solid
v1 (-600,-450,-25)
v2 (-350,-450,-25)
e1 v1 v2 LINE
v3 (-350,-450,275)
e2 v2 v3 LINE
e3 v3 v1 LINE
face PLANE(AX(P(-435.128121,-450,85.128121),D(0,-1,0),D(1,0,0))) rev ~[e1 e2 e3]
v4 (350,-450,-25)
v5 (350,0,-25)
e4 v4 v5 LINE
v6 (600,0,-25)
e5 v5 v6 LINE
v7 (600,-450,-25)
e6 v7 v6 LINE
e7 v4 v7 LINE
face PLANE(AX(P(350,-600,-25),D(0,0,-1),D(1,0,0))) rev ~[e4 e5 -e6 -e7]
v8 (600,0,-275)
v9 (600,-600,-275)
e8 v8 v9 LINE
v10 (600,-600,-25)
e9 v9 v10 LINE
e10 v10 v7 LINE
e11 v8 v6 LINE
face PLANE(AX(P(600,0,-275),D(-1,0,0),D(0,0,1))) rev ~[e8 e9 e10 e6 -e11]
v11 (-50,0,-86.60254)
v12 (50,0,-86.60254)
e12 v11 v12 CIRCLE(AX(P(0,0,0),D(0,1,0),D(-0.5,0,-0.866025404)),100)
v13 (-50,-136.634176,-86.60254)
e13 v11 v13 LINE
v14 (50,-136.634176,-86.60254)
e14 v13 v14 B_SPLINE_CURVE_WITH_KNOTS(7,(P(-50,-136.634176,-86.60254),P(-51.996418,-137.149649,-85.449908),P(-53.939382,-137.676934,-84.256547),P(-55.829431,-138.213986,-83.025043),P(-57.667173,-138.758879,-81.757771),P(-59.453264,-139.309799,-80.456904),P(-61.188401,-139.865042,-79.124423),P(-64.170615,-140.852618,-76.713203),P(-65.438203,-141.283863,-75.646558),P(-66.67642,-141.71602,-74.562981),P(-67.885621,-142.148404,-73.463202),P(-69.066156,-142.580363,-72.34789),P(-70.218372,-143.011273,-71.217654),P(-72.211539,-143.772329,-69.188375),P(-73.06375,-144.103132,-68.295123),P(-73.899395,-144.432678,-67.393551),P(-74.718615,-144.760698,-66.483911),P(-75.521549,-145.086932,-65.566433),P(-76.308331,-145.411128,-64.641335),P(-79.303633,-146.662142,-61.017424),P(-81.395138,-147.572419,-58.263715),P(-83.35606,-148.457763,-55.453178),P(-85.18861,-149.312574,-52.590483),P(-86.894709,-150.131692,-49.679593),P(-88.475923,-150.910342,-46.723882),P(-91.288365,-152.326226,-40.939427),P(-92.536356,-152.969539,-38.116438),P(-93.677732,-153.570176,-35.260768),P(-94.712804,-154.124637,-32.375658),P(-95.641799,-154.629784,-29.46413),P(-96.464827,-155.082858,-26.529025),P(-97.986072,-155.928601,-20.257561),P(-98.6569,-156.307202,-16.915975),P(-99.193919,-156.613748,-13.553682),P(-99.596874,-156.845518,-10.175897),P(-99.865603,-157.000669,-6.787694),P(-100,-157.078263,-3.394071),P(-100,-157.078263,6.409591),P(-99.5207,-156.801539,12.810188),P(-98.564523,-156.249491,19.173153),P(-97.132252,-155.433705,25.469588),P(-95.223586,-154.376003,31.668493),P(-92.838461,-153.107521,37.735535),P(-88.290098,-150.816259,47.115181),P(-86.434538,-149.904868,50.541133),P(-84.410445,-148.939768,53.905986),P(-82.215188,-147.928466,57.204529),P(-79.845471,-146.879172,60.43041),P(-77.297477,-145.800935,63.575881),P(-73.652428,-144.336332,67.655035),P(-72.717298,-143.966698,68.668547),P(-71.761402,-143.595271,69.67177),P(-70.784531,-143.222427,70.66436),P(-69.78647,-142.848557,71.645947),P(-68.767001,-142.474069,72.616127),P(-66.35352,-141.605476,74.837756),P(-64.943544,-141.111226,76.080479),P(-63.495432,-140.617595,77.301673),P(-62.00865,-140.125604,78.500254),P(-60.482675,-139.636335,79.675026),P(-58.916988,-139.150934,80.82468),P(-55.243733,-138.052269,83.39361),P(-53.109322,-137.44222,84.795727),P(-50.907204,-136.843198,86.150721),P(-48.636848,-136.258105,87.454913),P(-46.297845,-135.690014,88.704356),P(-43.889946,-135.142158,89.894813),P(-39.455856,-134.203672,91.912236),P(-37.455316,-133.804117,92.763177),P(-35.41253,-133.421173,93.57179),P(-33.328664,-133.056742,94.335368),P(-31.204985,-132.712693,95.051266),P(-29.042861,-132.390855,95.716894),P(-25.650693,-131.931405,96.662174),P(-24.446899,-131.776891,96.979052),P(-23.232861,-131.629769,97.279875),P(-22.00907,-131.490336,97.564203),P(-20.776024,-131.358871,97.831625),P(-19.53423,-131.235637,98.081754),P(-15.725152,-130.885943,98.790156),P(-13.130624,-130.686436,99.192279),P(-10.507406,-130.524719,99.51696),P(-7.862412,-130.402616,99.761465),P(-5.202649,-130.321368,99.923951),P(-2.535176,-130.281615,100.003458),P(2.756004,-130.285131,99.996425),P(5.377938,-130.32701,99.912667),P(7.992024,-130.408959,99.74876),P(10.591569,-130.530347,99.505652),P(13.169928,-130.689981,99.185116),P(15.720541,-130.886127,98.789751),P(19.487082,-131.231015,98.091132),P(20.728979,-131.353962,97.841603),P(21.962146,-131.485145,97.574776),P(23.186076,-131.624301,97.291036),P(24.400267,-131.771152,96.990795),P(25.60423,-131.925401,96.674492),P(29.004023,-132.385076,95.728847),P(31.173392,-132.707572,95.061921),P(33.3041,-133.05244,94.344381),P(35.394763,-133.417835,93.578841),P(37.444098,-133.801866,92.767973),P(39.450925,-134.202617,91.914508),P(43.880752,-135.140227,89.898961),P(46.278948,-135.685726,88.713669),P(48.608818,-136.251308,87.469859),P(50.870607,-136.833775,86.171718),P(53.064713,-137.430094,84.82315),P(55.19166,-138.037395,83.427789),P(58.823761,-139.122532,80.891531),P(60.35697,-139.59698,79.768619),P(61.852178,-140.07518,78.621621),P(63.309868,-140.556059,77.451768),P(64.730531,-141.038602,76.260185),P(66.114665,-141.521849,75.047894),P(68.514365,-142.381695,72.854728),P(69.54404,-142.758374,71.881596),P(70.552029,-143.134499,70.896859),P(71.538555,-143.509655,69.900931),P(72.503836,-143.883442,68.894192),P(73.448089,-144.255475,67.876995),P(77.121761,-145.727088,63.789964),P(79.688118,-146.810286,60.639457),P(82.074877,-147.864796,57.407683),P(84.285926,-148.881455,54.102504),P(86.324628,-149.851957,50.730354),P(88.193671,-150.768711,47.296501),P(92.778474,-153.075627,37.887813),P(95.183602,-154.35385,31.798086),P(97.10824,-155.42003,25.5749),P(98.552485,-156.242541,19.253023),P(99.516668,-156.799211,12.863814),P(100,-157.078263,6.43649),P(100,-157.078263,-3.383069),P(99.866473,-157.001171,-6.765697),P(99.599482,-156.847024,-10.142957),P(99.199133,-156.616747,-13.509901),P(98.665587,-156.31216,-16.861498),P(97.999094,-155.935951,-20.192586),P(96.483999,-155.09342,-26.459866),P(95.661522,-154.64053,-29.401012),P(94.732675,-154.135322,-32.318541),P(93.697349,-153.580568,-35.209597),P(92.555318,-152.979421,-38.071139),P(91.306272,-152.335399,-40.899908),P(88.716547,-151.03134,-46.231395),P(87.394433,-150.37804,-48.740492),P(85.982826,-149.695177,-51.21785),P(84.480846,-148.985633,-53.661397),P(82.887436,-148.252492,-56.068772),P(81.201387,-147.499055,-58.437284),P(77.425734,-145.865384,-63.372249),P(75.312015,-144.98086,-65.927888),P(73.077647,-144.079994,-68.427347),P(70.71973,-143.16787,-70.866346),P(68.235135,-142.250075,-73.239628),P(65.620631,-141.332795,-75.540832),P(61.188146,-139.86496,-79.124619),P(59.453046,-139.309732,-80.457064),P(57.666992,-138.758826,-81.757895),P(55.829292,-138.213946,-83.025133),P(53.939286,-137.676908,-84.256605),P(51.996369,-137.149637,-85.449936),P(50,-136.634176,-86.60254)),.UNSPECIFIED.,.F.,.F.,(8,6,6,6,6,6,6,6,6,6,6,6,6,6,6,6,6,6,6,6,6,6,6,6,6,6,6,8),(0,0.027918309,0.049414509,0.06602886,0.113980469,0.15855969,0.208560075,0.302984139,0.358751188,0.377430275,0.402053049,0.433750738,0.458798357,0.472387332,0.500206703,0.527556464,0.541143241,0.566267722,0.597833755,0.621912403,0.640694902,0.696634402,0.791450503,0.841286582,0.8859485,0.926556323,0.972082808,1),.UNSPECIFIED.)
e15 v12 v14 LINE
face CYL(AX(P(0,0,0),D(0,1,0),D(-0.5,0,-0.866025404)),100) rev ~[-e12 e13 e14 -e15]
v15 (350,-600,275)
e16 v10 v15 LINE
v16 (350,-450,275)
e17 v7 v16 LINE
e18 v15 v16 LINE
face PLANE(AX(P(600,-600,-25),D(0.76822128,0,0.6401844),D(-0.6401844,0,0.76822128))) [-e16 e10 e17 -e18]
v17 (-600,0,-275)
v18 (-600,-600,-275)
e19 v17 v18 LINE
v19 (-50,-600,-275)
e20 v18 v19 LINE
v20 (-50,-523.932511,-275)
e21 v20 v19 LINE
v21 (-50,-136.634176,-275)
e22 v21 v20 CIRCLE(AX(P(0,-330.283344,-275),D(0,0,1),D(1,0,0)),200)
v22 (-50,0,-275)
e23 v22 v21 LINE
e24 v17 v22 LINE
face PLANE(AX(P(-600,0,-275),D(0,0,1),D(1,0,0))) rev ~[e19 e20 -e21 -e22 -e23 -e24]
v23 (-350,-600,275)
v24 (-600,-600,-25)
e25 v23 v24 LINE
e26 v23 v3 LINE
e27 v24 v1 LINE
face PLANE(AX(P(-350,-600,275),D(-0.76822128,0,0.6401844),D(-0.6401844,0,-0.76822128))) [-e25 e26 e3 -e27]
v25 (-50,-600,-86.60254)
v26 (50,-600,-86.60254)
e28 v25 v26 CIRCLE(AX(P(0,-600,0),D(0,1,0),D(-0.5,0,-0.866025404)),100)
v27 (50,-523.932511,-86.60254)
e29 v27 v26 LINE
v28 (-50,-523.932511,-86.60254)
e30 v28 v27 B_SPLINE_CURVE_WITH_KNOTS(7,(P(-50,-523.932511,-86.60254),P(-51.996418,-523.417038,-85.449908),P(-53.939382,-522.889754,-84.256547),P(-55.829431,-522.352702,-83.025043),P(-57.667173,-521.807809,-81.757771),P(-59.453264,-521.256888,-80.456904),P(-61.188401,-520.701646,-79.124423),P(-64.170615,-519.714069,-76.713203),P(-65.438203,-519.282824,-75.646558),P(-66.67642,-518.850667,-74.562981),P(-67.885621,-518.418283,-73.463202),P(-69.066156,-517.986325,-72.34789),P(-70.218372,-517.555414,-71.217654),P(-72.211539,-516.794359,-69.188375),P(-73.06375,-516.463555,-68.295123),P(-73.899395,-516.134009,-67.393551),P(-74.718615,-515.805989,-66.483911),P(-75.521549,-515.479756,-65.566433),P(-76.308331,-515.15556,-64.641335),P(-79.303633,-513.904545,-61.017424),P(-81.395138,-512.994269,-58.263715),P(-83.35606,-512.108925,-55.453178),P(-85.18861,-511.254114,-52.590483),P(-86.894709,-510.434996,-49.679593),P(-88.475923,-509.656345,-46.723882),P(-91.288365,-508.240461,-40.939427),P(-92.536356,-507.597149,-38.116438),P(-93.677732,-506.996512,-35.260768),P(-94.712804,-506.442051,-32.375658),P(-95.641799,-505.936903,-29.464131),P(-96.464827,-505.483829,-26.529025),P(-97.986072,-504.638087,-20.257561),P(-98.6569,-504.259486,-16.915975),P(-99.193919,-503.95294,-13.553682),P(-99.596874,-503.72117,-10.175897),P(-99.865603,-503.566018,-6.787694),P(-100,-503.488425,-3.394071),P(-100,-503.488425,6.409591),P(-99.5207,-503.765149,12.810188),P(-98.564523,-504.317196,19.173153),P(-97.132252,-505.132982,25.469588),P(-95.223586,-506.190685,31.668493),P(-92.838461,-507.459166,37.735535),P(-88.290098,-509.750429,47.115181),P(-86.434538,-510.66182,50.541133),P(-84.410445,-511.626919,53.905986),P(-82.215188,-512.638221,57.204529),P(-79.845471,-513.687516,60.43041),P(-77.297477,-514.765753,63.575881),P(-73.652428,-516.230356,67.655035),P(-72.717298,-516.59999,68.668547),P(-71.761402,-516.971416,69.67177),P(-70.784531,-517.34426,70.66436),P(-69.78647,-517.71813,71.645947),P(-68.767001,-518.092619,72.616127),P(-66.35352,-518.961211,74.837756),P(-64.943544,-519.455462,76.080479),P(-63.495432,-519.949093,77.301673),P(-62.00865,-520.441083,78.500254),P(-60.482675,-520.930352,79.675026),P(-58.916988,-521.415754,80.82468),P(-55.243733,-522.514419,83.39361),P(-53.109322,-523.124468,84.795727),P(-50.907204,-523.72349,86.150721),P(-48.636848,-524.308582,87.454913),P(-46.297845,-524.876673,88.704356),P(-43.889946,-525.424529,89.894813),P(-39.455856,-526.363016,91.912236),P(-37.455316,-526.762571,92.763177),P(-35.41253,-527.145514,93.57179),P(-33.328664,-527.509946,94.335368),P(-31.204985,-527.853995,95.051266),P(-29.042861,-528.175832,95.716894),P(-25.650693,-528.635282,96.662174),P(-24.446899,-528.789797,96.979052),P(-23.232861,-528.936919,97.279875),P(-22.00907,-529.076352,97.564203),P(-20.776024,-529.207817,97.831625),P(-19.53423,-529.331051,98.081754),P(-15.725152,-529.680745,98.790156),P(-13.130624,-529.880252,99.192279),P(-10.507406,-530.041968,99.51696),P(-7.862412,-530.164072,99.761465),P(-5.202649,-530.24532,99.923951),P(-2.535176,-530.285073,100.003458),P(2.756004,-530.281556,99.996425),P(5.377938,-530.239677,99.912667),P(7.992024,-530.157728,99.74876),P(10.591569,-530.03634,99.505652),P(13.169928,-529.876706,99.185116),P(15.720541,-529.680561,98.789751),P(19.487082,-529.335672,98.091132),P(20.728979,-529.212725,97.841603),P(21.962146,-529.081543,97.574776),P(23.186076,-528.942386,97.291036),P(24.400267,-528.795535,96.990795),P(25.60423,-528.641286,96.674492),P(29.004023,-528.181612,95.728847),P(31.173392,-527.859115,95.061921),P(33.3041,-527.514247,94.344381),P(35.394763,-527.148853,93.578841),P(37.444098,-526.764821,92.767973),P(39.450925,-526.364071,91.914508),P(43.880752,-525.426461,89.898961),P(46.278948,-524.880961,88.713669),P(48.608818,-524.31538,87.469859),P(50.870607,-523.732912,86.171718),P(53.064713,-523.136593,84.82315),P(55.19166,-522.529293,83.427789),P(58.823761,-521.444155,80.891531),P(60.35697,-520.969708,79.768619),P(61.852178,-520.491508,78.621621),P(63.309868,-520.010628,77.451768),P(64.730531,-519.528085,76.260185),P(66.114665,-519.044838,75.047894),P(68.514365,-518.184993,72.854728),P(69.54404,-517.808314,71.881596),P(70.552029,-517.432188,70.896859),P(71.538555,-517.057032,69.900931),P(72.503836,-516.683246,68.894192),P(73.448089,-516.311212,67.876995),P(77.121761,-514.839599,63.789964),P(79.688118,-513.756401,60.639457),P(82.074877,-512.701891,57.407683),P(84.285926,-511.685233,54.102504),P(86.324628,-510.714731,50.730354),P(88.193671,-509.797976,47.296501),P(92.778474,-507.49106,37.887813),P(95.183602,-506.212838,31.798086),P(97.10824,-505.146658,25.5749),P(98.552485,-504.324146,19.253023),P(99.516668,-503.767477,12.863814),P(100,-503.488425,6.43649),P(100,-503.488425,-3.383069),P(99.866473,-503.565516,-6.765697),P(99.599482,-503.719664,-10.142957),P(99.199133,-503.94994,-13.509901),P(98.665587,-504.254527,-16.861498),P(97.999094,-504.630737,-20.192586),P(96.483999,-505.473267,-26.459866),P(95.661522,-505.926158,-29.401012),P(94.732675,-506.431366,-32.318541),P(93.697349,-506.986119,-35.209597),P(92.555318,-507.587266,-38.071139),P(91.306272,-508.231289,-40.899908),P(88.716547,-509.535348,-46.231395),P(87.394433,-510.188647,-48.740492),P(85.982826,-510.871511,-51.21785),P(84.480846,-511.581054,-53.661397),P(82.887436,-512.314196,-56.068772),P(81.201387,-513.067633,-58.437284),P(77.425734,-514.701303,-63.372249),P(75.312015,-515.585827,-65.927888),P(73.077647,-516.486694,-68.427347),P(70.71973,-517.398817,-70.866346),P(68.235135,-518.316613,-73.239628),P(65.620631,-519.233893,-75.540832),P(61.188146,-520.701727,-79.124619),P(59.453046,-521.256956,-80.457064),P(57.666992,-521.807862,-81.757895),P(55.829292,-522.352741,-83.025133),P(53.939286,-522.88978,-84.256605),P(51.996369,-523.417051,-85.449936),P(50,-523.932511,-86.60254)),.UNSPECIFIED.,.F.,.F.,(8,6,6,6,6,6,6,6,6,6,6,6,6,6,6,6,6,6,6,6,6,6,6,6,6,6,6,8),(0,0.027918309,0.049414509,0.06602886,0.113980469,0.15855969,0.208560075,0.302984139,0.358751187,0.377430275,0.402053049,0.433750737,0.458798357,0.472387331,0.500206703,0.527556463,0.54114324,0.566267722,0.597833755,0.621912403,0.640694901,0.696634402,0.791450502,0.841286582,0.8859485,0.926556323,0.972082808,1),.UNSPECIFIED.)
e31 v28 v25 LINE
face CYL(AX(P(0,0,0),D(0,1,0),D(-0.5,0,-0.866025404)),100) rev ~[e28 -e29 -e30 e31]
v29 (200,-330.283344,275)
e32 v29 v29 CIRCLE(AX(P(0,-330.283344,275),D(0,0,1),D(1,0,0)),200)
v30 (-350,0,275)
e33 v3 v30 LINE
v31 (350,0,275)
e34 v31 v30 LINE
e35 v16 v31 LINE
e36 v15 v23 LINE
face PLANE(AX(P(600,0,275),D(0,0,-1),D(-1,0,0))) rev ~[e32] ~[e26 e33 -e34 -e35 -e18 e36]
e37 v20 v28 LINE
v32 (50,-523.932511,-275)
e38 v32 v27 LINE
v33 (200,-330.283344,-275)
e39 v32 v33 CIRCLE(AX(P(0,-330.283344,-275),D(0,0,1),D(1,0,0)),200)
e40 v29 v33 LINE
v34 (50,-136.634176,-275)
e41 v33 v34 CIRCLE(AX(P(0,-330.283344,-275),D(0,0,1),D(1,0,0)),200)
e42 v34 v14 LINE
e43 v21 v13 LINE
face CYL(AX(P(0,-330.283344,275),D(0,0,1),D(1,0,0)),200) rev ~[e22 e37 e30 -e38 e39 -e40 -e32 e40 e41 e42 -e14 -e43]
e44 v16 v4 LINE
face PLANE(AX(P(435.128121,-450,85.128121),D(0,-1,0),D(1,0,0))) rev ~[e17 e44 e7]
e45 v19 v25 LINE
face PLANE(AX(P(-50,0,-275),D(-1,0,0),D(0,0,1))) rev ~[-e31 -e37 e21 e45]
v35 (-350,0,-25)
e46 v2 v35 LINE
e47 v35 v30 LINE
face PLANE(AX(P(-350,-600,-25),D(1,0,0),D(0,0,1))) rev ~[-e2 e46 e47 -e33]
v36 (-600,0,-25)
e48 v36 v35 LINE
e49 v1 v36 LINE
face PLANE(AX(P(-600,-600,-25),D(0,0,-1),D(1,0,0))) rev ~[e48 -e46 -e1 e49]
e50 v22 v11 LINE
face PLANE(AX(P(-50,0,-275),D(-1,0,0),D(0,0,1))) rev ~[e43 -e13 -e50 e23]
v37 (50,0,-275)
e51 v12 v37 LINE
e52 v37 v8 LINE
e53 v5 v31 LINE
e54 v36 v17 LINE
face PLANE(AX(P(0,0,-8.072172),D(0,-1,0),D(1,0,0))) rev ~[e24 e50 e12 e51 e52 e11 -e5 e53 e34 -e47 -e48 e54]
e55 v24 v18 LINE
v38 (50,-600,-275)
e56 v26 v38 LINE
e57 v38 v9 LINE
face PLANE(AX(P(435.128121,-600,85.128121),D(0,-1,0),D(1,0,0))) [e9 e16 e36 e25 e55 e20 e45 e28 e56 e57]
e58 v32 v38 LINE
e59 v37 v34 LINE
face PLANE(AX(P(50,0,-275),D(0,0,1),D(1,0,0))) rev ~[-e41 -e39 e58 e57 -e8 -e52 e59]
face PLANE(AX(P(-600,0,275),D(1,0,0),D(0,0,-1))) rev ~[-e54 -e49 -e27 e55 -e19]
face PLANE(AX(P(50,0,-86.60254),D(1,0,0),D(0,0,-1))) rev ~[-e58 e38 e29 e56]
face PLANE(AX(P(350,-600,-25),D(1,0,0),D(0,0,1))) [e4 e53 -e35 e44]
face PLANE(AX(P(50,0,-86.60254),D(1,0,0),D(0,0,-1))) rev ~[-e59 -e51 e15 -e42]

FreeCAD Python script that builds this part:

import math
import FreeCAD as App
import Part
import Sketcher
from FreeCAD import Vector
Q = App.Units.Quantity


def add_polygon(sketch, points):
    """Adds a closed chain of lines whose ends are joined by coincident constraints."""
    first, n = sketch.GeometryCount, len(points)
    for a, b in zip(points, points[1:] + points[:1]):
        sketch.addGeometry(Part.LineSegment(App.Vector(*a, 0), App.Vector(*b, 0)), False)
    for i in range(n):
        sketch.addConstraint(Sketcher.Constraint("Coincident", first + i, 2, first + (i + 1) % n, 1))

doc = App.newDocument("Part")
body = doc.addObject("PartDesign::Body", "Body")

# Sketch on XZ plane
sketch1 = doc.addObject("Sketcher::SketchObject", "Sketch")
body.addObject(sketch1)
sketch1.AttachmentSupport = (doc.XZ_Plane, [""])
sketch1.MapMode = "FlatFace"
sketch1.addGeometry(Part.LineSegment(Vector(600, -275, 0), Vector(600, 275, 0)), False)
sketch1.addGeometry(Part.LineSegment(Vector(600, 275, 0), Vector(-600, 275, 0)), False)
sketch1.addGeometry(Part.LineSegment(Vector(-600, 275, 0), Vector(-600, -275, 0)), False)
sketch1.addGeometry(Part.LineSegment(Vector(-600, -275, 0), Vector(-50, -275, 0)), False)
sketch1.addGeometry(Part.LineSegment(Vector(-50, -275, 0), Vector(-50, -87, 0)), False)
sketch1.addGeometry(Part.ArcOfCircle(Part.Circle(Vector(0, 0, 0), Vector(0, 0, 1), 100), math.radians(-60), math.radians(240)), False)
sketch1.addGeometry(Part.LineSegment(Vector(50, -87, 0), Vector(50, -275, 0)), False)
sketch1.addGeometry(Part.LineSegment(Vector(50, -275, 0), Vector(600, -275, 0)), False)
sketch1.addConstraint(Sketcher.Constraint("Coincident", 0, 2, 1, 1))
sketch1.addConstraint(Sketcher.Constraint("Coincident", 1, 2, 2, 1))
sketch1.addConstraint(Sketcher.Constraint("Coincident", 2, 2, 3, 1))
sketch1.addConstraint(Sketcher.Constraint("Coincident", 3, 2, 4, 1))
sketch1.addConstraint(Sketcher.Constraint("Coincident", 4, 2, 5, 2))
sketch1.addConstraint(Sketcher.Constraint("Coincident", 5, 1, 6, 1))
sketch1.addConstraint(Sketcher.Constraint("Coincident", 6, 2, 7, 1))
sketch1.addConstraint(Sketcher.Constraint("Coincident", 7, 2, 0, 1))
sketch1.addConstraint(Sketcher.Constraint("Vertical", 0))
sketch1.addConstraint(Sketcher.Constraint("Horizontal", 1))
sketch1.addConstraint(Sketcher.Constraint("Vertical", 2))
sketch1.addConstraint(Sketcher.Constraint("Horizontal", 3))
sketch1.addConstraint(Sketcher.Constraint("Vertical", 4))
sketch1.addConstraint(Sketcher.Constraint("Vertical", 6))
sketch1.addConstraint(Sketcher.Constraint("Horizontal", 7))
sketch1.addConstraint(Sketcher.Constraint("Coincident", 5, 3, -1, 1))
sketch1.addConstraint(Sketcher.Constraint("Symmetric", 0, 2, 2, 2, -1, 1))
sketch1.addConstraint(Sketcher.Constraint("Symmetric", 3, 2, 6, 2, -2))
sketch1.addConstraint(Sketcher.Constraint("Equal", 7, 0))
sketch1.addConstraint(Sketcher.Constraint("Radius", 5, Q("100 mm")))
sketch1.addConstraint(Sketcher.Constraint("DistanceX", 1, 2, 1, 1, Q("1200 mm")))
sketch1.addConstraint(Sketcher.Constraint("DistanceX", 3, 1, 3, 2, Q("550 mm")))
pad1 = doc.addObject("PartDesign::Pad", "Pad")
body.addObject(pad1)
pad1.Profile = sketch1
pad1.Length = 600

# Sketch on XZ plane
sketch2 = doc.addObject("Sketcher::SketchObject", "Sketch001")
body.addObject(sketch2)
sketch2.AttachmentSupport = (doc.XZ_Plane, [""])
sketch2.MapMode = "FlatFace"
sketch2.AttachmentOffset = App.Placement(Vector(0, 0, 600), App.Rotation())
add_polygon(sketch2, [(-600, 275), (-600, -25), (-350, -25), (-350, 275)])  # lines 0-3
add_polygon(sketch2, [(350, 275), (350, -25), (600, -25), (600, 275)])  # lines 4-7
sketch2.addConstraint(Sketcher.Constraint("Vertical", 0))
sketch2.addConstraint(Sketcher.Constraint("Horizontal", 1))
sketch2.addConstraint(Sketcher.Constraint("Vertical", 2))
sketch2.addConstraint(Sketcher.Constraint("Horizontal", 3))
sketch2.addConstraint(Sketcher.Constraint("Vertical", 4))
sketch2.addConstraint(Sketcher.Constraint("Horizontal", 5))
sketch2.addConstraint(Sketcher.Constraint("Vertical", 6))
sketch2.addConstraint(Sketcher.Constraint("Horizontal", 7))
sketch2.addConstraint(Sketcher.Constraint("Symmetric", 1, 2, 4, 2, -2))
sketch2.addConstraint(Sketcher.Constraint("Symmetric", 3, 2, 6, 2, -2))
sketch2.addConstraint(Sketcher.Constraint("DistanceX", 1, 1, 1, 2, Q("250 mm")))
sketch2.addConstraint(Sketcher.Constraint("DistanceY", 0, 2, 0, 1, Q("300 mm")))
sketch2.addConstraint(Sketcher.Constraint("DistanceX", 0, 2, -1, 1, Q("600 mm")))
sketch2.addConstraint(Sketcher.Constraint("DistanceY", 0, 2, -1, 1, Q("25 mm")))
pocket1 = doc.addObject("PartDesign::Pocket", "Pocket")
body.addObject(pocket1)
pocket1.Profile = sketch2
pocket1.Length = 600

# Sketch on XZ plane
sketch3 = doc.addObject("Sketcher::SketchObject", "Sketch002")
body.addObject(sketch3)
sketch3.AttachmentSupport = (doc.XZ_Plane, [""])
sketch3.MapMode = "FlatFace"
sketch3.AttachmentOffset = App.Placement(Vector(0, 0, 600), App.Rotation())
add_polygon(sketch3, [(-350, 275), (-600, -25), (-350, -25)])  # lines 0-2
sketch3.addConstraint(Sketcher.Constraint("Horizontal", 1))
sketch3.addConstraint(Sketcher.Constraint("Vertical", 2))
sketch3.addConstraint(Sketcher.Constraint("DistanceX", 1, 1, 1, 2, Q("250 mm")))
sketch3.addConstraint(Sketcher.Constraint("DistanceY", 2, 1, 2, 2, Q("300 mm")))
sketch3.addConstraint(Sketcher.Constraint("DistanceX", 0, 2, -1, 1, Q("600 mm")))
sketch3.addConstraint(Sketcher.Constraint("DistanceY", 0, 2, -1, 1, Q("25 mm")))
pad2 = doc.addObject("PartDesign::Pad", "Pad001")
body.addObject(pad2)
pad2.Profile = sketch3
pad2.Length = 150
pad2.Reversed = True

# Sketch on XZ plane
sketch4 = doc.addObject("Sketcher::SketchObject", "Sketch003")
body.addObject(sketch4)
sketch4.AttachmentSupport = (doc.XZ_Plane, [""])
sketch4.MapMode = "FlatFace"
sketch4.AttachmentOffset = App.Placement(Vector(0, 0, 600), App.Rotation())
add_polygon(sketch4, [(350, -25), (600, -25), (350, 275)])  # lines 0-2
sketch4.addConstraint(Sketcher.Constraint("Horizontal", 0))
sketch4.addConstraint(Sketcher.Constraint("Vertical", 2))
sketch4.addConstraint(Sketcher.Constraint("DistanceX", 0, 1, 0, 2, Q("250 mm")))
sketch4.addConstraint(Sketcher.Constraint("DistanceY", 2, 2, 2, 1, Q("300 mm")))
sketch4.addConstraint(Sketcher.Constraint("DistanceX", -1, 1, 0, 2, Q("600 mm")))
sketch4.addConstraint(Sketcher.Constraint("DistanceY", 0, 2, -1, 1, Q("25 mm")))
pad3 = doc.addObject("PartDesign::Pad", "Pad002")
body.addObject(pad3)
pad3.Profile = sketch4
pad3.Length = 150
pad3.Reversed = True

# Sketch on XY plane
sketch5 = doc.addObject("Sketcher::SketchObject", "Sketch004")
body.addObject(sketch5)
sketch5.AttachmentSupport = (doc.XY_Plane, [""])
sketch5.MapMode = "FlatFace"
sketch5.AttachmentOffset = App.Placement(Vector(0, 0, 275), App.Rotation())
sketch5.addGeometry(Part.Circle(Vector(0, -330, 0), Vector(0, 0, 1), 200), False)
sketch5.addConstraint(Sketcher.Constraint("PointOnObject", 0, 3, -2))
sketch5.addConstraint(Sketcher.Constraint("Diameter", 0, Q("400 mm")))
sketch5.addConstraint(Sketcher.Constraint("DistanceY", 0, 3, -1, 1, Q("330.283344 mm")))
pocket2 = doc.addObject("PartDesign::Pocket", "Pocket001")
body.addObject(pocket2)
pocket2.Profile = sketch5
pocket2.Type = "ThroughAll"

doc.recompute()
